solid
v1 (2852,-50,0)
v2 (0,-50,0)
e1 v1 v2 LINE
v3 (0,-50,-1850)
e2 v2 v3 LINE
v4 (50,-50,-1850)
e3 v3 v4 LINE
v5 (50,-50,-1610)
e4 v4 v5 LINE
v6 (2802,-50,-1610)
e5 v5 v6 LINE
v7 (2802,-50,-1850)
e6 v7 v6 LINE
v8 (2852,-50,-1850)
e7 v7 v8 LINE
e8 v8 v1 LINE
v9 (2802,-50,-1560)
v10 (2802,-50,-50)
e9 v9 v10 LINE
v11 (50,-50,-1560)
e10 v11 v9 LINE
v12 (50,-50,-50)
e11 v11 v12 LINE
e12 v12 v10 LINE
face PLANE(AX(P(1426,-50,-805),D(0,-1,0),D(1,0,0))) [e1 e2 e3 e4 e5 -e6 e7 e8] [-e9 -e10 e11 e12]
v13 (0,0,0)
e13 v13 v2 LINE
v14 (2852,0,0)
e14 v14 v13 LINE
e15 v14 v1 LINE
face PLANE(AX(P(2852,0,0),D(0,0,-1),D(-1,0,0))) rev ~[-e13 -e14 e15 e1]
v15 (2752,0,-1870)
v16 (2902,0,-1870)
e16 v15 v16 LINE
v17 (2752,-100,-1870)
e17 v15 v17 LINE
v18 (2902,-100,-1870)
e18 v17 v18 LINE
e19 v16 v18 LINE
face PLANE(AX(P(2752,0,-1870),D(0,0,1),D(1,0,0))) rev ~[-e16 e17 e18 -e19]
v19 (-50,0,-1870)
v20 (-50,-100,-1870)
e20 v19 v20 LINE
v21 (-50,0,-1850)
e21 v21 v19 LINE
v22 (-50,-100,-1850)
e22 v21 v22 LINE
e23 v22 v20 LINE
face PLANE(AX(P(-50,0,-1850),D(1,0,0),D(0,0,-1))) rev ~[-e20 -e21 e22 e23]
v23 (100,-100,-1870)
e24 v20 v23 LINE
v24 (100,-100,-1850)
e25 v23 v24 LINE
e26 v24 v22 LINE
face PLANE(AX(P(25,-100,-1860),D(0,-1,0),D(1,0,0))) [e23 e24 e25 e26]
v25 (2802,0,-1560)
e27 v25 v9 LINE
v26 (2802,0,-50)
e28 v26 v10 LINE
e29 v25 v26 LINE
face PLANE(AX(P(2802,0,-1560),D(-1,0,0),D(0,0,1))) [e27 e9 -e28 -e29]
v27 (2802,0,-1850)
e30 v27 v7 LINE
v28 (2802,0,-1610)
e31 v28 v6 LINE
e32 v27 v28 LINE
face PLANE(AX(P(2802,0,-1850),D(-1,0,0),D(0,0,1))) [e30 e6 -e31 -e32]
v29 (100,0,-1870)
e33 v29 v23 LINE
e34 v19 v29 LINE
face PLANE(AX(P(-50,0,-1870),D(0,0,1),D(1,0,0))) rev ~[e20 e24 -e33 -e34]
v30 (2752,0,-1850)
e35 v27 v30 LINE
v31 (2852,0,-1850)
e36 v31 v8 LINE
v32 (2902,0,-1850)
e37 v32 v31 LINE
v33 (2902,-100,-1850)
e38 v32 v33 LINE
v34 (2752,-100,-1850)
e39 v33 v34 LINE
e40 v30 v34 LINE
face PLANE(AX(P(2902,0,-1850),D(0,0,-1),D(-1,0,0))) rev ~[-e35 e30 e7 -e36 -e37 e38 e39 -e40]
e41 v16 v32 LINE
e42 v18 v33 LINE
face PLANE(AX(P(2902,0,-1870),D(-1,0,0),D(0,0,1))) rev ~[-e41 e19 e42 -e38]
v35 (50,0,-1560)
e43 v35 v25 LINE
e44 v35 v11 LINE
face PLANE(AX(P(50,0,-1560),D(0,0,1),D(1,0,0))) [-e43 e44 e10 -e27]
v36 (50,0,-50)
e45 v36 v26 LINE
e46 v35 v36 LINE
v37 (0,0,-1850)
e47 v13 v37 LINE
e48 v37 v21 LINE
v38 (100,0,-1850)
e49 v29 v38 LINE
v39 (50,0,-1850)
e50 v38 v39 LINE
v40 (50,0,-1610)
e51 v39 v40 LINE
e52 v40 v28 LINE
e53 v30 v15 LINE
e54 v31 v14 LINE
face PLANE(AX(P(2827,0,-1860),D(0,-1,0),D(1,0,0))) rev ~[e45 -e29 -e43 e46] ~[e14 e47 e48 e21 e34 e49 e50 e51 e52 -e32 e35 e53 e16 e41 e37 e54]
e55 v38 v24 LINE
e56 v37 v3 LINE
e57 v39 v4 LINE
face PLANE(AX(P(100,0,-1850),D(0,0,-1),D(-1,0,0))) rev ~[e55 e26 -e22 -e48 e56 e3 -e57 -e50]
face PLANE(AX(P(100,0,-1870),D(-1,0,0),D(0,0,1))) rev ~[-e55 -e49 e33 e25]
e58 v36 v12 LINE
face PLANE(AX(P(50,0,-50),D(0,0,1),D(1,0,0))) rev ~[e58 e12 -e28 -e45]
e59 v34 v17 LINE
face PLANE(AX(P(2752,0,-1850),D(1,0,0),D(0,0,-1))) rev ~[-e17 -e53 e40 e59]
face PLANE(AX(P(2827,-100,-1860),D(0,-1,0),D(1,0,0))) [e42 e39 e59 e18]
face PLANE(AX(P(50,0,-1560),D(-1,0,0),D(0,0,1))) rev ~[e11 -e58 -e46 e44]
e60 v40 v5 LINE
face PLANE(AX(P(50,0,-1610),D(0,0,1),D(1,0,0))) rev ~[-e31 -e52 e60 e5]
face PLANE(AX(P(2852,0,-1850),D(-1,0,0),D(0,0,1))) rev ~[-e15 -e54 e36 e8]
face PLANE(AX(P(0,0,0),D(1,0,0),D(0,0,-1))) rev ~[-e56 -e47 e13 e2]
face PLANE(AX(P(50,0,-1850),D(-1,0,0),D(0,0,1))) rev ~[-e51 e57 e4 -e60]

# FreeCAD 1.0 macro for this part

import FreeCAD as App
import Part
import Sketcher

V = App.Vector


def add_polygon(sketch, points):
    """Adds a closed chain of lines whose ends are joined by coincident constraints."""
    first, n = sketch.GeometryCount, len(points)
    for a, b in zip(points, points[1:] + points[:1]):
        sketch.addGeometry(Part.LineSegment(App.Vector(*a, 0), App.Vector(*b, 0)), False)
    for i in range(n):
        sketch.addConstraint(Sketcher.Constraint("Coincident", first + i, 2, first + (i + 1) % n, 1))

doc = App.newDocument("Part")
body = doc.addObject("PartDesign::Body", "Body")

# Sketch on XZ plane
sketch1 = doc.addObject("Sketcher::SketchObject", "Sketch")
body.addObject(sketch1)
sketch1.AttachmentSupport = (doc.XZ_Plane, [""])
sketch1.MapMode = "FlatFace"
add_polygon(sketch1, [(2852, 0), (0, 0), (0, -1850), (50, -1850), (50, -1610), (2802, -1610), (2802, -1850), (2852, -1850)])  # lines 0-7
add_polygon(sketch1, [(2802, -1560), (50, -1560), (50, -50), (2802, -50)])  # lines 8-11
sketch1.addConstraint(Sketcher.Constraint("Horizontal", 0))
sketch1.addConstraint(Sketcher.Constraint("Vertical", 1))
sketch1.addConstraint(Sketcher.Constraint("Horizontal", 2))
sketch1.addConstraint(Sketcher.Constraint("Vertical", 3))
sketch1.addConstraint(Sketcher.Constraint("Horizontal", 4))
sketch1.addConstraint(Sketcher.Constraint("Vertical", 5))
sketch1.addConstraint(Sketcher.Constraint("Horizontal", 6))
sketch1.addConstraint(Sketcher.Constraint("Vertical", 7))
sketch1.addConstraint(Sketcher.Constraint("Horizontal", 8))
sketch1.addConstraint(Sketcher.Constraint("Vertical", 9))
sketch1.addConstraint(Sketcher.Constraint("Horizontal", 10))
sketch1.addConstraint(Sketcher.Constraint("Vertical", 11))
sketch1.addConstraint(Sketcher.Constraint("Coincident", 0, 2, -1, 1))
sketch1.addConstraint(Sketcher.Constraint("Horizontal", 2, 2, 5, 2))
sketch1.addConstraint(Sketcher.Constraint("Vertical", 3, 2, 8, 2))
sketch1.addConstraint(Sketcher.Constraint("Vertical", 5, 2, 10, 2))
sketch1.addConstraint(Sketcher.Constraint("Equal", 2, 6))
sketch1.addConstraint(Sketcher.Constraint("DistanceX", 0, 2, 0, 1, 2852.0))
sketch1.addConstraint(Sketcher.Constraint("DistanceX", 2, 1, 2, 2, 50.0))
sketch1.addConstraint(Sketcher.Constraint("DistanceY", 1, 2, 1, 1, 1850.0))
sketch1.addConstraint(Sketcher.Constraint("DistanceY", 3, 1, 3, 2, 240.0))
sketch1.addConstraint(Sketcher.Constraint("DistanceY", 9, 1, 9, 2, 1510.0))
sketch1.addConstraint(Sketcher.Constraint("DistanceY", 8, 2, -1, 1, 1560.0))
pad1 = doc.addObject("PartDesign::Pad", "Pad")
body.addObject(pad1)
pad1.Profile = sketch1
pad1.Length = 50

# Sketch on XZ plane
sketch2 = doc.addObject("Sketcher::SketchObject", "Sketch001")
body.addObject(sketch2)
sketch2.AttachmentSupport = (doc.XZ_Plane, [""])
sketch2.MapMode = "FlatFace"
add_polygon(sketch2, [(-50, -1850), (-50, -1870), (100, -1870), (100, -1850)])  # lines 0-3
sketch2.addConstraint(Sketcher.Constraint("Vertical", 0))
sketch2.addConstraint(Sketcher.Constraint("Horizontal", 1))
sketch2.addConstraint(Sketcher.Constraint("Vertical", 2))
sketch2.addConstraint(Sketcher.Constraint("Horizontal", 3))
sketch2.addConstraint(Sketcher.Constraint("DistanceX", 1, 1, 1, 2, 150.0))
sketch2.addConstraint(Sketcher.Constraint("DistanceY", 0, 2, 0, 1, 20.0))
sketch2.addConstraint(Sketcher.Constraint("DistanceX", 0, 2, -1, 1, 50.0))
sketch2.addConstraint(Sketcher.Constraint("DistanceY", 0, 2, -1, 1, 1870.0))
pad2 = doc.addObject("PartDesign::Pad", "Pad001")
body.addObject(pad2)
pad2.Profile = sketch2
pad2.Length = 100

# Sketch on XZ plane
sketch3 = doc.addObject("Sketcher::SketchObject", "Sketch002")
body.addObject(sketch3)
sketch3.AttachmentSupport = (doc.XZ_Plane, [""])
sketch3.MapMode = "FlatFace"
add_polygon(sketch3, [(2902, -1850), (2752, -1850), (2752, -1870), (2902, -1870)])  # lines 0-3
sketch3.addConstraint(Sketcher.Constraint("Horizontal", 0))
sketch3.addConstraint(Sketcher.Constraint("Vertical", 1))
sketch3.addConstraint(Sketcher.Constraint("Horizontal", 2))
sketch3.addConstraint(Sketcher.Constraint("Vertical", 3))
sketch3.addConstraint(Sketcher.Constraint("DistanceX", 0, 2, 0, 1, 150.0))
sketch3.addConstraint(Sketcher.Constraint("DistanceY", 1, 2, 1, 1, 20.0))
sketch3.addConstraint(Sketcher.Constraint("DistanceX", -1, 1, 0, 2, 2752.0))
sketch3.addConstraint(Sketcher.Constraint("DistanceY", 0, 2, -1, 1, 1850.0))
pad3 = doc.addObject("PartDesign::Pad", "Pad002")
body.addObject(pad3)
pad3.Profile = sketch3
pad3.Length = 100

doc.recompute()
